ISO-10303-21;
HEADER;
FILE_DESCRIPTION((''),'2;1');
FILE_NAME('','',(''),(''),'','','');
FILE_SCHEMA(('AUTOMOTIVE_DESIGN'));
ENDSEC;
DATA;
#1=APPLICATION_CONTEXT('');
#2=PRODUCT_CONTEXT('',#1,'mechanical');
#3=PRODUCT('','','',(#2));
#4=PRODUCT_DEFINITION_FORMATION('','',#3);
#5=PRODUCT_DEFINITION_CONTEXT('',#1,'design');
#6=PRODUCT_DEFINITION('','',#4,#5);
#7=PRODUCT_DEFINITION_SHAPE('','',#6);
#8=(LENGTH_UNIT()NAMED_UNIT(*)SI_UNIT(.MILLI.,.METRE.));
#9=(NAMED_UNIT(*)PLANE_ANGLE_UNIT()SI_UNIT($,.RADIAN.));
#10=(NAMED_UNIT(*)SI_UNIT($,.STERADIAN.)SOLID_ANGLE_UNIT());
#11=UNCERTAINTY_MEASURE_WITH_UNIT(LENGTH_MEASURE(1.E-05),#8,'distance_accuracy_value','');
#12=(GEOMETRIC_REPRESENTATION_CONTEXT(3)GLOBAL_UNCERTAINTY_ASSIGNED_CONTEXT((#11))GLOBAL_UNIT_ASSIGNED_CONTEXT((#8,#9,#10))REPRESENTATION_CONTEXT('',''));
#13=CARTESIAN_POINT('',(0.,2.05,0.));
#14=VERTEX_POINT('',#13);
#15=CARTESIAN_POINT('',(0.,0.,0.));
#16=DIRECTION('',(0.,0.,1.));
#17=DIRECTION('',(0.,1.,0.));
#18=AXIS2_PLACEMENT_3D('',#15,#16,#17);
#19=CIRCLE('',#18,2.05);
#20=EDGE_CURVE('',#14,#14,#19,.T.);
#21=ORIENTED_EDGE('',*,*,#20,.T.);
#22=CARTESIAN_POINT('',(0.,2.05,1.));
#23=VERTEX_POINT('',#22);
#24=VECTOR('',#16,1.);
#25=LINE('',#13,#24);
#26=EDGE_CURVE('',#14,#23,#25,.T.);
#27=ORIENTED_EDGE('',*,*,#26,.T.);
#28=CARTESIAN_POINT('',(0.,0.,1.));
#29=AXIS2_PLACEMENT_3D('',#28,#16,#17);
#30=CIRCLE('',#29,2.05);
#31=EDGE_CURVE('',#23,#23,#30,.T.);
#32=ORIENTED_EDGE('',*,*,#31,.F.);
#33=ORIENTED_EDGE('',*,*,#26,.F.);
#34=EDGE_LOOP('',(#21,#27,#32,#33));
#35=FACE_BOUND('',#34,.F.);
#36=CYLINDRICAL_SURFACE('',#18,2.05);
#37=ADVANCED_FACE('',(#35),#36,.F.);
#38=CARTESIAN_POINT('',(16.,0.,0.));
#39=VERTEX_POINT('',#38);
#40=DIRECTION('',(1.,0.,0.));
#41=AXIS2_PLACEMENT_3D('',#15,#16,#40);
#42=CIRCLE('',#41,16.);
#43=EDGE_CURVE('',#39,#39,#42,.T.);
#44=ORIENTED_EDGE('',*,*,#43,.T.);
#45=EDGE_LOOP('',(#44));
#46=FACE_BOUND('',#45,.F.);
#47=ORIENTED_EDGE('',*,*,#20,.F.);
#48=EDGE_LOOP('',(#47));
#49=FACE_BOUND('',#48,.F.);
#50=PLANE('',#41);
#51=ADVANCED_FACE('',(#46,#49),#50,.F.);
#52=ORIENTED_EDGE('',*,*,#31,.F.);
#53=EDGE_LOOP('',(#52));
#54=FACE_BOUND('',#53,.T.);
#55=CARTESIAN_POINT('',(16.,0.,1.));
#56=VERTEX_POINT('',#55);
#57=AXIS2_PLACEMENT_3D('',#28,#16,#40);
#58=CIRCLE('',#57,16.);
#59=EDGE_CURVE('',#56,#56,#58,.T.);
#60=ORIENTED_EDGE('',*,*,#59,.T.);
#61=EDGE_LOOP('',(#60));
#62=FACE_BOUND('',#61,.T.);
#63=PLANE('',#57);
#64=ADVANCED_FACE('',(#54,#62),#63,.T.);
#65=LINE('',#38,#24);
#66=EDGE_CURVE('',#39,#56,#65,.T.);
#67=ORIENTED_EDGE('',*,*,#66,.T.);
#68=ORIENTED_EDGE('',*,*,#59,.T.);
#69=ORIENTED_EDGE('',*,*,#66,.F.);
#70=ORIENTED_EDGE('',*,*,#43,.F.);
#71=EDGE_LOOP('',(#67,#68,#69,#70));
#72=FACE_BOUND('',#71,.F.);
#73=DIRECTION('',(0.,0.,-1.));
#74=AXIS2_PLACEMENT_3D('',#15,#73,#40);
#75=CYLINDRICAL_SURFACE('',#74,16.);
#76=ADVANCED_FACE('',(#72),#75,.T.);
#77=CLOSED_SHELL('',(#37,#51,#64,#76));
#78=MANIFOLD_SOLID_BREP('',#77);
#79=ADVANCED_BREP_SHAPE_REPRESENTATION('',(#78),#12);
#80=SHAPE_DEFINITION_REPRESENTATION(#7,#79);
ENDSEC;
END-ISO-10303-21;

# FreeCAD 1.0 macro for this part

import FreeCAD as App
import Part
import Sketcher

V = App.Vector

doc = App.newDocument("Part")
params = doc.addObject("Spreadsheet::Sheet", "Params")
for row, (alias, value) in enumerate([
    ("sketch1_diameter", "32 mm"),
    ("pad1_length", "1 mm"),
    ("sketch2_diameter", "4.1 mm"),
    ("hole_diameter", "4.1 mm"),
], start=1):
    params.set(f"A{row}", alias)
    params.set(f"B{row}", "=" + value)
    params.setAlias(f"B{row}", alias)

body = doc.addObject("PartDesign::Body", "Body")

# Sketch on XY plane
sketch1 = body.newObject("Sketcher::SketchObject", "Sketch")
sketch1.AttachmentSupport = (doc.getObject("XY_Plane"), [""])
sketch1.MapMode = "FlatFace"
sketch1.addGeometry(Part.Circle(V(0, 0, 0), V(0, 0, 1), 16), False)
sketch1.addConstraint(Sketcher.Constraint("Coincident", 0, 3, -1, 1))
sketch1.addConstraint(Sketcher.Constraint("Diameter", 0, 32.0))
sketch1.setExpression("Constraints[1]", "Params.sketch1_diameter")
pad1 = body.newObject("PartDesign::Pad", "Pad")
pad1.Profile = sketch1
pad1.setExpression("Length", "Params.pad1_length")

# Sketch on XY plane
sketch2 = body.newObject("Sketcher::SketchObject", "Sketch001")
sketch2.AttachmentSupport = (doc.getObject("XY_Plane"), [""])
sketch2.MapMode = "FlatFace"
sketch2.addGeometry(Part.Circle(V(0, 0, 0), V(0, 0, 1), 2), False)
sketch2.addConstraint(Sketcher.Constraint("Coincident", 0, 3, -1, 1))
sketch2.addConstraint(Sketcher.Constraint("Diameter", 0, 4.1))
sketch2.setExpression("Constraints[1]", "Params.sketch2_diameter")
doc.recompute()
hole = body.newObject("PartDesign::Hole", "Hole")
hole.Profile = sketch2
hole.ThreadType = "None"
hole.setExpression("Diameter", "Params.hole_diameter")
hole.DepthType = "ThroughAll"
hole.Reversed = True

doc.recompute()
